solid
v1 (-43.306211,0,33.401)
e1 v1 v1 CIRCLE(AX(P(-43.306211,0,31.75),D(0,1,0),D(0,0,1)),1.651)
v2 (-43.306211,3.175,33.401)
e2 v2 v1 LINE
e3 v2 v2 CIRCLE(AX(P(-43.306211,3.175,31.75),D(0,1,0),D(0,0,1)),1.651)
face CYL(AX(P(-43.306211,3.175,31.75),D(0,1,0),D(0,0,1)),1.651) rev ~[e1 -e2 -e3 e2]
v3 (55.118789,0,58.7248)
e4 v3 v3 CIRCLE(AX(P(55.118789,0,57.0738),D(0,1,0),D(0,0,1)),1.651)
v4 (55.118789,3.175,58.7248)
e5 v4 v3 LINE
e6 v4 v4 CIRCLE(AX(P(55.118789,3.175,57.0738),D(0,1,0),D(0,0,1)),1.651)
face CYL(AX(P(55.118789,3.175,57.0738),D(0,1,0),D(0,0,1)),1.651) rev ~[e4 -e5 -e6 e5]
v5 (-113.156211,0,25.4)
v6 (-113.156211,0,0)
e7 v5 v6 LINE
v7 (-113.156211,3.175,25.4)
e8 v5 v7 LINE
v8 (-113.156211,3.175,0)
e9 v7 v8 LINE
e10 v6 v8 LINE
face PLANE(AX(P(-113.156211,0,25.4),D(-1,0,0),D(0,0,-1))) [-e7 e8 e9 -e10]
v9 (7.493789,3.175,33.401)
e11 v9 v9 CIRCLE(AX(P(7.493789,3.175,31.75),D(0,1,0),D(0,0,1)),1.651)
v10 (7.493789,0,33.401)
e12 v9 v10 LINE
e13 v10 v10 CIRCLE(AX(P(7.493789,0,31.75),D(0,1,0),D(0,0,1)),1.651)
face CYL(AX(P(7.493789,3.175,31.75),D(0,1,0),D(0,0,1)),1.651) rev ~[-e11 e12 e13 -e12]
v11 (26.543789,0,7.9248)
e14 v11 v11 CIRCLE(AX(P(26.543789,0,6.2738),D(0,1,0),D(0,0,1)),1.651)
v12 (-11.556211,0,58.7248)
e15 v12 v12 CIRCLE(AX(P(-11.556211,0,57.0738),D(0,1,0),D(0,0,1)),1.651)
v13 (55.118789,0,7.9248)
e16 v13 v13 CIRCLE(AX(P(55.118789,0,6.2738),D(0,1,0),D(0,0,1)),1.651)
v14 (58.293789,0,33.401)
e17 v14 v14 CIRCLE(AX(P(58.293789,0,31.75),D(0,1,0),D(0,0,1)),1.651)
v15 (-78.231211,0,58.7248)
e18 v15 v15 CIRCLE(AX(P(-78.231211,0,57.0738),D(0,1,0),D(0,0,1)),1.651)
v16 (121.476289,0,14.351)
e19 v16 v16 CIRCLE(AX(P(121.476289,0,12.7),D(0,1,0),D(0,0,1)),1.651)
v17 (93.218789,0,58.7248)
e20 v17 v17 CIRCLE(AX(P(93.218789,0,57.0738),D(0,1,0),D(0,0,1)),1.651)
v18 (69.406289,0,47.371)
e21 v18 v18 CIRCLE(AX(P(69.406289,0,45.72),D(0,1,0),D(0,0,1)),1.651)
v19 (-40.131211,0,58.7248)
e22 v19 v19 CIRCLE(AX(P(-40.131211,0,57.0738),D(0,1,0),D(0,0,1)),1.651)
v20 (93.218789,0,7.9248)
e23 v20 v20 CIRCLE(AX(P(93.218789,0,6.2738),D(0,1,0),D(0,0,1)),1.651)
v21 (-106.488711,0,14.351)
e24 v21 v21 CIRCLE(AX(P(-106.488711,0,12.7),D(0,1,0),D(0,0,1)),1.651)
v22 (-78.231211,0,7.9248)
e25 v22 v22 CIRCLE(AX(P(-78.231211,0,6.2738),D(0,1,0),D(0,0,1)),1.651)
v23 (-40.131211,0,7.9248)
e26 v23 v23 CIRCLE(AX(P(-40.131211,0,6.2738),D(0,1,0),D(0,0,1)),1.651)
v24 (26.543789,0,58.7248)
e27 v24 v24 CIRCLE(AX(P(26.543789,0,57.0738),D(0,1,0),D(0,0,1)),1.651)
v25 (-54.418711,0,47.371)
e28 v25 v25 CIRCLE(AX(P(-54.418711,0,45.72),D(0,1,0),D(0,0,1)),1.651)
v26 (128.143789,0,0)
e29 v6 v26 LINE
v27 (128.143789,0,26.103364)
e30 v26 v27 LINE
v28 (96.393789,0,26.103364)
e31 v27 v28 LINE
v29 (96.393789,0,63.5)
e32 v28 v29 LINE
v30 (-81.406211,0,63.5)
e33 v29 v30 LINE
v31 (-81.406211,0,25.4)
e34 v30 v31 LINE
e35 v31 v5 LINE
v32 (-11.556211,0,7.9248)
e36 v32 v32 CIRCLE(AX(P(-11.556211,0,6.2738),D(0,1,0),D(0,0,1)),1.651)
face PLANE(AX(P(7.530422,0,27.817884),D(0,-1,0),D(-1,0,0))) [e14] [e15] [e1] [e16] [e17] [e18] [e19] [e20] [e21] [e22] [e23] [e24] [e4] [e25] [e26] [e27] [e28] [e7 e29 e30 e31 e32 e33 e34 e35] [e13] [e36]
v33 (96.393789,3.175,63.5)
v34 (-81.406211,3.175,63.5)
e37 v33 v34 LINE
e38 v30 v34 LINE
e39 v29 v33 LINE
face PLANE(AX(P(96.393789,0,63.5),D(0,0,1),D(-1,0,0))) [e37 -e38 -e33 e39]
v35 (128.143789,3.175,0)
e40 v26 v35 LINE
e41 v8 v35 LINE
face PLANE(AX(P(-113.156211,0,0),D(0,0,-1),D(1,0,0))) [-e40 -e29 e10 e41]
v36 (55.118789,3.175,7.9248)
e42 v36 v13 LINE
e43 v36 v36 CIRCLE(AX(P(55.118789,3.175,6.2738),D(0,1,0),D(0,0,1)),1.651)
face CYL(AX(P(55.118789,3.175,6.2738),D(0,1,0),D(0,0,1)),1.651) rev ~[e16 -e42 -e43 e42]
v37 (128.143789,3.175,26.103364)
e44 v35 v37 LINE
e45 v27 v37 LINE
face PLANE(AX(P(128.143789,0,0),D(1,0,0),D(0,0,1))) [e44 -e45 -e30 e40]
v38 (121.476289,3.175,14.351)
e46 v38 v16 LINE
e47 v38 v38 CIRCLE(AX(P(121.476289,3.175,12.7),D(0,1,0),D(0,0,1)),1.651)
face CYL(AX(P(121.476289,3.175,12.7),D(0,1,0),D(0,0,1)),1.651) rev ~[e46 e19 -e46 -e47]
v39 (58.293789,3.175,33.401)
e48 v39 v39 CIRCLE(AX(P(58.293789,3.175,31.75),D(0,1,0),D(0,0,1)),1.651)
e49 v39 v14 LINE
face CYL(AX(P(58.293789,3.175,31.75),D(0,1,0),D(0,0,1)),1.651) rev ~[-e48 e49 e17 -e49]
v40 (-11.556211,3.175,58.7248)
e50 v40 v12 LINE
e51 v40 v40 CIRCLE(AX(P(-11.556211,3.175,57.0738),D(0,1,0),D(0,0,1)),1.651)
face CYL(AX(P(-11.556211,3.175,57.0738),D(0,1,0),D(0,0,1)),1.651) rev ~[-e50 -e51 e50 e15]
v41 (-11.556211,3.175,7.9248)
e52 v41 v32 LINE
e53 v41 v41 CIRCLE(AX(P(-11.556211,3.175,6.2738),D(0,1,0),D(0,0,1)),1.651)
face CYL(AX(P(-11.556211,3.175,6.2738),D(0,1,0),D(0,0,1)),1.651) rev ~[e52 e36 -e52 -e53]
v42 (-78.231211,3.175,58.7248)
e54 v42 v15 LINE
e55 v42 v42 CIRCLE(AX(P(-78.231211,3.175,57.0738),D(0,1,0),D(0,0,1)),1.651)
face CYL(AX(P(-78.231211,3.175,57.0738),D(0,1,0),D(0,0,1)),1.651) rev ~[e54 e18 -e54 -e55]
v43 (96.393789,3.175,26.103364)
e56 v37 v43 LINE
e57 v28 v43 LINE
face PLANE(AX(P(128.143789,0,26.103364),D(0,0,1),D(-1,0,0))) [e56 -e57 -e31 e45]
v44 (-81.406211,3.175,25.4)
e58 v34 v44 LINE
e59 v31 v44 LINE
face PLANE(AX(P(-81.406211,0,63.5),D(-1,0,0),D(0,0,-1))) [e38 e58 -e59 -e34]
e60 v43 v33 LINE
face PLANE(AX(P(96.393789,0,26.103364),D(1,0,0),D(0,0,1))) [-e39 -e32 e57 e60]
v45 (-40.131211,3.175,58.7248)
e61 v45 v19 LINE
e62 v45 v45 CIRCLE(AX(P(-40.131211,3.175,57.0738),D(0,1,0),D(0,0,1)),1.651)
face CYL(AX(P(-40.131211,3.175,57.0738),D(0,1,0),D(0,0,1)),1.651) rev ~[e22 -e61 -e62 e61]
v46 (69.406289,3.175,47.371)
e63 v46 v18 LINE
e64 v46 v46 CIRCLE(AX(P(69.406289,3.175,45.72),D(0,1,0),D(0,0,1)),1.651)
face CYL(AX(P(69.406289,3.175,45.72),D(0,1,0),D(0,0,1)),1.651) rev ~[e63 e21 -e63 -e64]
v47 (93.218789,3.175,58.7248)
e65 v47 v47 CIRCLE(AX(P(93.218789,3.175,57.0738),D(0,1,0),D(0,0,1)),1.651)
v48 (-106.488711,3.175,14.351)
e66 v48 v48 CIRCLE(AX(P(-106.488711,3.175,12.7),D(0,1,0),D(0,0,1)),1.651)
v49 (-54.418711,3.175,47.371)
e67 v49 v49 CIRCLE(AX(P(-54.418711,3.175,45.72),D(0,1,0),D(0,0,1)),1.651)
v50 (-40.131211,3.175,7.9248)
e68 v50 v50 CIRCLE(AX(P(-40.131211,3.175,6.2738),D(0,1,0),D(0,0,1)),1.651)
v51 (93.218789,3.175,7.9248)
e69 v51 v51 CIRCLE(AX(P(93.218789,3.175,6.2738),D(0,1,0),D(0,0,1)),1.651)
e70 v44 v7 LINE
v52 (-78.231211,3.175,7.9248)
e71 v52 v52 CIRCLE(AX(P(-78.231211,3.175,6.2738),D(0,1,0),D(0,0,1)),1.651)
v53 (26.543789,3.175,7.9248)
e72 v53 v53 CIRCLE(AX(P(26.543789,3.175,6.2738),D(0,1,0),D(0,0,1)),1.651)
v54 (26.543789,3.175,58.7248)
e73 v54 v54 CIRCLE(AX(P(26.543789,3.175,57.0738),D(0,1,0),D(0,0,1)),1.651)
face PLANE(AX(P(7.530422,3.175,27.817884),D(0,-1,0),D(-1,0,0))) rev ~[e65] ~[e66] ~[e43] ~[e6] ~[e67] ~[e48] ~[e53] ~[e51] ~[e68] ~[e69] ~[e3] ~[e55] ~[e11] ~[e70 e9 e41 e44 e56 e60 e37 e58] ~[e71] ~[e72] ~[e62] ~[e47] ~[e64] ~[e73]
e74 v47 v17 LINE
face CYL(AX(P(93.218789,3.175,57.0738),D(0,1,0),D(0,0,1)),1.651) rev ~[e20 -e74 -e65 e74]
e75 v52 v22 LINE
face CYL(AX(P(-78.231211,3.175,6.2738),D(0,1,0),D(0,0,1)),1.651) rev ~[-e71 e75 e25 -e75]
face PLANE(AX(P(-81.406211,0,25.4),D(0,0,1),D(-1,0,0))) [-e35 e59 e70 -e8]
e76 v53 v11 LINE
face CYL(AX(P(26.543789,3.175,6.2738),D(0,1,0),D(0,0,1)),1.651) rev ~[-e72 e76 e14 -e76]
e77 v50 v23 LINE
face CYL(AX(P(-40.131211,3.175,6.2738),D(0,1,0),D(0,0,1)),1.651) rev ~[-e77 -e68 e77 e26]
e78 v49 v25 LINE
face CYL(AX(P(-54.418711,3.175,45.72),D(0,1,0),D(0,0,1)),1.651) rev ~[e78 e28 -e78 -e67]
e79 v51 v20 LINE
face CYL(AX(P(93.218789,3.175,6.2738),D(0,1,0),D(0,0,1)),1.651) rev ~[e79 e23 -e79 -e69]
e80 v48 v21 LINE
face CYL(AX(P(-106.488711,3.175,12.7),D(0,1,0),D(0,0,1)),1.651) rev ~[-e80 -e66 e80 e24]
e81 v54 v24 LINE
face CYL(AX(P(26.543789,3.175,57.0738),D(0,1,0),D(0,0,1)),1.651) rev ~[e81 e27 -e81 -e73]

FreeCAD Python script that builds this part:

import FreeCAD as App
import Part
import Sketcher
from FreeCAD import Vector
Q = App.Units.Quantity


def add_polygon(sketch, points):
    """Adds a closed chain of lines whose ends are joined by coincident constraints."""
    first, n = sketch.GeometryCount, len(points)
    for a, b in zip(points, points[1:] + points[:1]):
        sketch.addGeometry(Part.LineSegment(App.Vector(*a, 0), App.Vector(*b, 0)), False)
    for i in range(n):
        sketch.addConstraint(Sketcher.Constraint("Coincident", first + i, 2, first + (i + 1) % n, 1))

doc = App.newDocument("Part")
body = doc.addObject("PartDesign::Body", "Body")

# Sketch on XZ plane
sketch1 = body.newObject("Sketcher::SketchObject", "Sketch")
sketch1.AttachmentSupport = (doc.getObject("XZ_Plane"), [""])
sketch1.MapMode = "FlatFace"
add_polygon(sketch1, [(128, 0), (-113, 0), (-113, 25), (-81, 25), (-81, 64), (96, 64), (96, 26), (128, 26)])  # lines 0-7
sketch1.addConstraint(Sketcher.Constraint("Horizontal", 0))
sketch1.addConstraint(Sketcher.Constraint("Vertical", 1))
sketch1.addConstraint(Sketcher.Constraint("Horizontal", 2))
sketch1.addConstraint(Sketcher.Constraint("Vertical", 3))
sketch1.addConstraint(Sketcher.Constraint("Horizontal", 4))
sketch1.addConstraint(Sketcher.Constraint("Vertical", 5))
sketch1.addConstraint(Sketcher.Constraint("Horizontal", 6))
sketch1.addConstraint(Sketcher.Constraint("Vertical", 7))
sketch1.addConstraint(Sketcher.Constraint("PointOnObject", 0, 2, -1))
sketch1.addConstraint(Sketcher.Constraint("Equal", 2, 6))
sketch1.addConstraint(Sketcher.Constraint("DistanceX", 4, 1, 4, 2, Q("7 in")))
sketch1.addConstraint(Sketcher.Constraint("DistanceY", 1, 1, 1, 2, Q("1 in")))
sketch1.addConstraint(Sketcher.Constraint("DistanceX", 0, 2, 0, 1, Q("9.5 in")))
sketch1.addConstraint(Sketcher.Constraint("DistanceY", 3, 1, 3, 2, Q("1.5 in")))
sketch1.addConstraint(Sketcher.Constraint("DistanceY", 5, 2, 5, 1, Q("37.396636 mm")))
sketch1.addConstraint(Sketcher.Constraint("DistanceX", 0, 2, -1, 1, Q("113.156211 mm")))
pad1 = body.newObject("PartDesign::Pad", "Pad")
pad1.Profile = sketch1
pad1.Length = Q("0.125 in")
pad1.Reversed = True

# Sketch on XZ plane
sketch2 = body.newObject("Sketcher::SketchObject", "Sketch001")
sketch2.AttachmentSupport = (doc.getObject("XZ_Plane"), [""])
sketch2.MapMode = "FlatFace"
sketch2.AttachmentOffset = App.Placement(Vector(0, 0, -0.125 * 25.4), App.Rotation())
sketch2.addGeometry(Part.Circle(Vector(7.5, 31.8, 0), Vector(0, 0, 1), 1.7), False)
sketch2.addGeometry(Part.Circle(Vector(58.3, 31.8, 0), Vector(0, 0, 1), 1.7), False)
sketch2.addGeometry(Part.Circle(Vector(-43.3, 31.8, 0), Vector(0, 0, 1), 1.7), False)
sketch2.addConstraint(Sketcher.Constraint("Equal", 0, 1))
sketch2.addConstraint(Sketcher.Constraint("Equal", 1, 2))
sketch2.addConstraint(Sketcher.Constraint("Horizontal", 0, 3, 1, 3))
sketch2.addConstraint(Sketcher.Constraint("Horizontal", 1, 3, 2, 3))
sketch2.addConstraint(Sketcher.Constraint("Diameter", 0, Q("0.13 in")))
sketch2.addConstraint(Sketcher.Constraint("DistanceX", 0, 3, 1, 3, Q("2 in")))
sketch2.addConstraint(Sketcher.Constraint("DistanceX", 2, 3, 0, 3, Q("2 in")))
sketch2.addConstraint(Sketcher.Constraint("DistanceY", -1, 1, 0, 3, Q("1.25 in")))
sketch2.addConstraint(Sketcher.Constraint("DistanceX", -1, 1, 0, 3, Q("7.493789 mm")))
pocket1 = body.newObject("PartDesign::Pocket", "Pocket")
pocket1.Profile = sketch2
pocket1.Length = Q("0.125 in")
pocket1.Reversed = True

# Sketch on XZ plane
sketch3 = body.newObject("Sketcher::SketchObject", "Sketch002")
sketch3.AttachmentSupport = (doc.getObject("XZ_Plane"), [""])
sketch3.MapMode = "FlatFace"
sketch3.AttachmentOffset = App.Placement(Vector(0, 0, -0.125 * 25.4), App.Rotation())
sketch3.addGeometry(Part.Circle(Vector(69.4, 45.7, 0), Vector(0, 0, 1), 1.7), False)
sketch3.addGeometry(Part.Circle(Vector(-54.4, 45.7, 0), Vector(0, 0, 1), 1.7), False)
sketch3.addGeometry(Part.Circle(Vector(121.5, 12.7, 0), Vector(0, 0, 1), 1.7), False)
sketch3.addGeometry(Part.Circle(Vector(-106.5, 12.7, 0), Vector(0, 0, 1), 1.7), False)
sketch3.addConstraint(Sketcher.Constraint("Equal", 0, 1))
sketch3.addConstraint(Sketcher.Constraint("Equal", 1, 2))
sketch3.addConstraint(Sketcher.Constraint("Equal", 2, 3))
sketch3.addConstraint(Sketcher.Constraint("Horizontal", 0, 3, 1, 3))
sketch3.addConstraint(Sketcher.Constraint("Horizontal", 2, 3, 3, 3))
sketch3.addConstraint(Sketcher.Constraint("Diameter", 0, Q("0.13 in")))
sketch3.addConstraint(Sketcher.Constraint("DistanceY", -1, 1, 0, 3, Q("1.8 in")))
sketch3.addConstraint(Sketcher.Constraint("DistanceY", -1, 1, 2, 3, Q("0.5 in")))
sketch3.addConstraint(Sketcher.Constraint("DistanceX", 0, 3, 2, 3, Q("2.05 in")))
sketch3.addConstraint(Sketcher.Constraint("DistanceX", 3, 3, 1, 3, Q("2.05 in")))
sketch3.addConstraint(Sketcher.Constraint("DistanceX", 1, 3, 0, 3, Q("4.875 in")))
sketch3.addConstraint(Sketcher.Constraint("DistanceX", -1, 1, 0, 3, Q("69.406289 mm")))
pocket2 = body.newObject("PartDesign::Pocket", "Pocket001")
pocket2.Profile = sketch3
pocket2.Length = Q("0.125 in")
pocket2.Reversed = True

# Sketch on XZ plane
sketch4 = body.newObject("Sketcher::SketchObject", "Sketch003")
sketch4.AttachmentSupport = (doc.getObject("XZ_Plane"), [""])
sketch4.MapMode = "FlatFace"
sketch4.AttachmentOffset = App.Placement(Vector(0, 0, -0.125 * 25.4), App.Rotation())
sketch4.addGeometry(Part.Circle(Vector(93.2, 57.1, 0), Vector(0, 0, 1), 1.7), False)
sketch4.addGeometry(Part.Circle(Vector(55.1, 57.1, 0), Vector(0, 0, 1), 1.7), False)
sketch4.addGeometry(Part.Circle(Vector(26.5, 57.1, 0), Vector(0, 0, 1), 1.7), False)
sketch4.addGeometry(Part.Circle(Vector(-11.6, 57.1, 0), Vector(0, 0, 1), 1.7), False)
sketch4.addGeometry(Part.Circle(Vector(-40.1, 57.1, 0), Vector(0, 0, 1), 1.7), False)
sketch4.addGeometry(Part.Circle(Vector(-78.2, 57.1, 0), Vector(0, 0, 1), 1.7), False)
sketch4.addConstraint(Sketcher.Constraint("Equal", 0, 1))
sketch4.addConstraint(Sketcher.Constraint("Equal", 1, 2))
sketch4.addConstraint(Sketcher.Constraint("Equal", 2, 3))
sketch4.addConstraint(Sketcher.Constraint("Equal", 3, 4))
sketch4.addConstraint(Sketcher.Constraint("Equal", 4, 5))
sketch4.addConstraint(Sketcher.Constraint("Horizontal", 0, 3, 1, 3))
sketch4.addConstraint(Sketcher.Constraint("Horizontal", 1, 3, 2, 3))
sketch4.addConstraint(Sketcher.Constraint("Horizontal", 2, 3, 3, 3))
sketch4.addConstraint(Sketcher.Constraint("Horizontal", 3, 3, 4, 3))
sketch4.addConstraint(Sketcher.Constraint("Horizontal", 4, 3, 5, 3))
sketch4.addConstraint(Sketcher.Constraint("Diameter", 0, Q("0.13 in")))
sketch4.addConstraint(Sketcher.Constraint("DistanceX", 1, 3, 0, 3, Q("1.5 in")))
sketch4.addConstraint(Sketcher.Constraint("DistanceX", 3, 3, 2, 3, Q("1.5 in")))
sketch4.addConstraint(Sketcher.Constraint("DistanceX", 5, 3, 4, 3, Q("1.5 in")))
sketch4.addConstraint(Sketcher.Constraint("DistanceX", 4, 3, 1, 3, Q("3.75 in")))
sketch4.addConstraint(Sketcher.Constraint("DistanceY", -1, 1, 0, 3, Q("2.247 in")))
sketch4.addConstraint(Sketcher.Constraint("DistanceX", 2, 3, 1, 3, Q("1.125 in")))
sketch4.addConstraint(Sketcher.Constraint("DistanceX", -1, 1, 0, 3, Q("93.218789 mm")))
pocket3 = body.newObject("PartDesign::Pocket", "Pocket002")
pocket3.Profile = sketch4
pocket3.Length = Q("0.15 in")
pocket3.Reversed = True

# Sketch on XZ plane
sketch5 = body.newObject("Sketcher::SketchObject", "Sketch004")
sketch5.AttachmentSupport = (doc.getObject("XZ_Plane"), [""])
sketch5.MapMode = "FlatFace"
sketch5.AttachmentOffset = App.Placement(Vector(0, 0, -0.125 * 25.4), App.Rotation())
sketch5.addGeometry(Part.Circle(Vector(93.2, 6.3, 0), Vector(0, 0, 1), 1.7), False)
sketch5.addGeometry(Part.Circle(Vector(55.1, 6.3, 0), Vector(0, 0, 1), 1.7), False)
sketch5.addGeometry(Part.Circle(Vector(26.5, 6.3, 0), Vector(0, 0, 1), 1.7), False)
sketch5.addGeometry(Part.Circle(Vector(-11.6, 6.3, 0), Vector(0, 0, 1), 1.7), False)
sketch5.addGeometry(Part.Circle(Vector(-40.1, 6.3, 0), Vector(0, 0, 1), 1.7), False)
sketch5.addGeometry(Part.Circle(Vector(-78.2, 6.3, 0), Vector(0, 0, 1), 1.7), False)
sketch5.addConstraint(Sketcher.Constraint("Equal", 0, 1))
sketch5.addConstraint(Sketcher.Constraint("Equal", 1, 2))
sketch5.addConstraint(Sketcher.Constraint("Equal", 2, 3))
sketch5.addConstraint(Sketcher.Constraint("Equal", 3, 4))
sketch5.addConstraint(Sketcher.Constraint("Equal", 4, 5))
sketch5.addConstraint(Sketcher.Constraint("Horizontal", 0, 3, 1, 3))
sketch5.addConstraint(Sketcher.Constraint("Horizontal", 1, 3, 2, 3))
sketch5.addConstraint(Sketcher.Constraint("Horizontal", 2, 3, 3, 3))
sketch5.addConstraint(Sketcher.Constraint("Horizontal", 3, 3, 4, 3))
sketch5.addConstraint(Sketcher.Constraint("Horizontal", 4, 3, 5, 3))
sketch5.addConstraint(Sketcher.Constraint("Diameter", 0, Q("0.13 in")))
sketch5.addConstraint(Sketcher.Constraint("DistanceX", 1, 3, 0, 3, Q("1.5 in")))
sketch5.addConstraint(Sketcher.Constraint("DistanceX", 3, 3, 2, 3, Q("1.5 in")))
sketch5.addConstraint(Sketcher.Constraint("DistanceX", 5, 3, 4, 3, Q("1.5 in")))
sketch5.addConstraint(Sketcher.Constraint("DistanceX", 4, 3, 1, 3, Q("3.75 in")))
sketch5.addConstraint(Sketcher.Constraint("DistanceY", -1, 1, 0, 3, Q("0.247 in")))
sketch5.addConstraint(Sketcher.Constraint("DistanceX", 2, 3, 1, 3, Q("1.125 in")))
sketch5.addConstraint(Sketcher.Constraint("DistanceX", -1, 1, 0, 3, Q("93.218789 mm")))
pocket4 = body.newObject("PartDesign::Pocket", "Pocket003")
pocket4.Profile = sketch5
pocket4.Length = Q("0.15 in")
pocket4.Reversed = True

doc.recompute()
